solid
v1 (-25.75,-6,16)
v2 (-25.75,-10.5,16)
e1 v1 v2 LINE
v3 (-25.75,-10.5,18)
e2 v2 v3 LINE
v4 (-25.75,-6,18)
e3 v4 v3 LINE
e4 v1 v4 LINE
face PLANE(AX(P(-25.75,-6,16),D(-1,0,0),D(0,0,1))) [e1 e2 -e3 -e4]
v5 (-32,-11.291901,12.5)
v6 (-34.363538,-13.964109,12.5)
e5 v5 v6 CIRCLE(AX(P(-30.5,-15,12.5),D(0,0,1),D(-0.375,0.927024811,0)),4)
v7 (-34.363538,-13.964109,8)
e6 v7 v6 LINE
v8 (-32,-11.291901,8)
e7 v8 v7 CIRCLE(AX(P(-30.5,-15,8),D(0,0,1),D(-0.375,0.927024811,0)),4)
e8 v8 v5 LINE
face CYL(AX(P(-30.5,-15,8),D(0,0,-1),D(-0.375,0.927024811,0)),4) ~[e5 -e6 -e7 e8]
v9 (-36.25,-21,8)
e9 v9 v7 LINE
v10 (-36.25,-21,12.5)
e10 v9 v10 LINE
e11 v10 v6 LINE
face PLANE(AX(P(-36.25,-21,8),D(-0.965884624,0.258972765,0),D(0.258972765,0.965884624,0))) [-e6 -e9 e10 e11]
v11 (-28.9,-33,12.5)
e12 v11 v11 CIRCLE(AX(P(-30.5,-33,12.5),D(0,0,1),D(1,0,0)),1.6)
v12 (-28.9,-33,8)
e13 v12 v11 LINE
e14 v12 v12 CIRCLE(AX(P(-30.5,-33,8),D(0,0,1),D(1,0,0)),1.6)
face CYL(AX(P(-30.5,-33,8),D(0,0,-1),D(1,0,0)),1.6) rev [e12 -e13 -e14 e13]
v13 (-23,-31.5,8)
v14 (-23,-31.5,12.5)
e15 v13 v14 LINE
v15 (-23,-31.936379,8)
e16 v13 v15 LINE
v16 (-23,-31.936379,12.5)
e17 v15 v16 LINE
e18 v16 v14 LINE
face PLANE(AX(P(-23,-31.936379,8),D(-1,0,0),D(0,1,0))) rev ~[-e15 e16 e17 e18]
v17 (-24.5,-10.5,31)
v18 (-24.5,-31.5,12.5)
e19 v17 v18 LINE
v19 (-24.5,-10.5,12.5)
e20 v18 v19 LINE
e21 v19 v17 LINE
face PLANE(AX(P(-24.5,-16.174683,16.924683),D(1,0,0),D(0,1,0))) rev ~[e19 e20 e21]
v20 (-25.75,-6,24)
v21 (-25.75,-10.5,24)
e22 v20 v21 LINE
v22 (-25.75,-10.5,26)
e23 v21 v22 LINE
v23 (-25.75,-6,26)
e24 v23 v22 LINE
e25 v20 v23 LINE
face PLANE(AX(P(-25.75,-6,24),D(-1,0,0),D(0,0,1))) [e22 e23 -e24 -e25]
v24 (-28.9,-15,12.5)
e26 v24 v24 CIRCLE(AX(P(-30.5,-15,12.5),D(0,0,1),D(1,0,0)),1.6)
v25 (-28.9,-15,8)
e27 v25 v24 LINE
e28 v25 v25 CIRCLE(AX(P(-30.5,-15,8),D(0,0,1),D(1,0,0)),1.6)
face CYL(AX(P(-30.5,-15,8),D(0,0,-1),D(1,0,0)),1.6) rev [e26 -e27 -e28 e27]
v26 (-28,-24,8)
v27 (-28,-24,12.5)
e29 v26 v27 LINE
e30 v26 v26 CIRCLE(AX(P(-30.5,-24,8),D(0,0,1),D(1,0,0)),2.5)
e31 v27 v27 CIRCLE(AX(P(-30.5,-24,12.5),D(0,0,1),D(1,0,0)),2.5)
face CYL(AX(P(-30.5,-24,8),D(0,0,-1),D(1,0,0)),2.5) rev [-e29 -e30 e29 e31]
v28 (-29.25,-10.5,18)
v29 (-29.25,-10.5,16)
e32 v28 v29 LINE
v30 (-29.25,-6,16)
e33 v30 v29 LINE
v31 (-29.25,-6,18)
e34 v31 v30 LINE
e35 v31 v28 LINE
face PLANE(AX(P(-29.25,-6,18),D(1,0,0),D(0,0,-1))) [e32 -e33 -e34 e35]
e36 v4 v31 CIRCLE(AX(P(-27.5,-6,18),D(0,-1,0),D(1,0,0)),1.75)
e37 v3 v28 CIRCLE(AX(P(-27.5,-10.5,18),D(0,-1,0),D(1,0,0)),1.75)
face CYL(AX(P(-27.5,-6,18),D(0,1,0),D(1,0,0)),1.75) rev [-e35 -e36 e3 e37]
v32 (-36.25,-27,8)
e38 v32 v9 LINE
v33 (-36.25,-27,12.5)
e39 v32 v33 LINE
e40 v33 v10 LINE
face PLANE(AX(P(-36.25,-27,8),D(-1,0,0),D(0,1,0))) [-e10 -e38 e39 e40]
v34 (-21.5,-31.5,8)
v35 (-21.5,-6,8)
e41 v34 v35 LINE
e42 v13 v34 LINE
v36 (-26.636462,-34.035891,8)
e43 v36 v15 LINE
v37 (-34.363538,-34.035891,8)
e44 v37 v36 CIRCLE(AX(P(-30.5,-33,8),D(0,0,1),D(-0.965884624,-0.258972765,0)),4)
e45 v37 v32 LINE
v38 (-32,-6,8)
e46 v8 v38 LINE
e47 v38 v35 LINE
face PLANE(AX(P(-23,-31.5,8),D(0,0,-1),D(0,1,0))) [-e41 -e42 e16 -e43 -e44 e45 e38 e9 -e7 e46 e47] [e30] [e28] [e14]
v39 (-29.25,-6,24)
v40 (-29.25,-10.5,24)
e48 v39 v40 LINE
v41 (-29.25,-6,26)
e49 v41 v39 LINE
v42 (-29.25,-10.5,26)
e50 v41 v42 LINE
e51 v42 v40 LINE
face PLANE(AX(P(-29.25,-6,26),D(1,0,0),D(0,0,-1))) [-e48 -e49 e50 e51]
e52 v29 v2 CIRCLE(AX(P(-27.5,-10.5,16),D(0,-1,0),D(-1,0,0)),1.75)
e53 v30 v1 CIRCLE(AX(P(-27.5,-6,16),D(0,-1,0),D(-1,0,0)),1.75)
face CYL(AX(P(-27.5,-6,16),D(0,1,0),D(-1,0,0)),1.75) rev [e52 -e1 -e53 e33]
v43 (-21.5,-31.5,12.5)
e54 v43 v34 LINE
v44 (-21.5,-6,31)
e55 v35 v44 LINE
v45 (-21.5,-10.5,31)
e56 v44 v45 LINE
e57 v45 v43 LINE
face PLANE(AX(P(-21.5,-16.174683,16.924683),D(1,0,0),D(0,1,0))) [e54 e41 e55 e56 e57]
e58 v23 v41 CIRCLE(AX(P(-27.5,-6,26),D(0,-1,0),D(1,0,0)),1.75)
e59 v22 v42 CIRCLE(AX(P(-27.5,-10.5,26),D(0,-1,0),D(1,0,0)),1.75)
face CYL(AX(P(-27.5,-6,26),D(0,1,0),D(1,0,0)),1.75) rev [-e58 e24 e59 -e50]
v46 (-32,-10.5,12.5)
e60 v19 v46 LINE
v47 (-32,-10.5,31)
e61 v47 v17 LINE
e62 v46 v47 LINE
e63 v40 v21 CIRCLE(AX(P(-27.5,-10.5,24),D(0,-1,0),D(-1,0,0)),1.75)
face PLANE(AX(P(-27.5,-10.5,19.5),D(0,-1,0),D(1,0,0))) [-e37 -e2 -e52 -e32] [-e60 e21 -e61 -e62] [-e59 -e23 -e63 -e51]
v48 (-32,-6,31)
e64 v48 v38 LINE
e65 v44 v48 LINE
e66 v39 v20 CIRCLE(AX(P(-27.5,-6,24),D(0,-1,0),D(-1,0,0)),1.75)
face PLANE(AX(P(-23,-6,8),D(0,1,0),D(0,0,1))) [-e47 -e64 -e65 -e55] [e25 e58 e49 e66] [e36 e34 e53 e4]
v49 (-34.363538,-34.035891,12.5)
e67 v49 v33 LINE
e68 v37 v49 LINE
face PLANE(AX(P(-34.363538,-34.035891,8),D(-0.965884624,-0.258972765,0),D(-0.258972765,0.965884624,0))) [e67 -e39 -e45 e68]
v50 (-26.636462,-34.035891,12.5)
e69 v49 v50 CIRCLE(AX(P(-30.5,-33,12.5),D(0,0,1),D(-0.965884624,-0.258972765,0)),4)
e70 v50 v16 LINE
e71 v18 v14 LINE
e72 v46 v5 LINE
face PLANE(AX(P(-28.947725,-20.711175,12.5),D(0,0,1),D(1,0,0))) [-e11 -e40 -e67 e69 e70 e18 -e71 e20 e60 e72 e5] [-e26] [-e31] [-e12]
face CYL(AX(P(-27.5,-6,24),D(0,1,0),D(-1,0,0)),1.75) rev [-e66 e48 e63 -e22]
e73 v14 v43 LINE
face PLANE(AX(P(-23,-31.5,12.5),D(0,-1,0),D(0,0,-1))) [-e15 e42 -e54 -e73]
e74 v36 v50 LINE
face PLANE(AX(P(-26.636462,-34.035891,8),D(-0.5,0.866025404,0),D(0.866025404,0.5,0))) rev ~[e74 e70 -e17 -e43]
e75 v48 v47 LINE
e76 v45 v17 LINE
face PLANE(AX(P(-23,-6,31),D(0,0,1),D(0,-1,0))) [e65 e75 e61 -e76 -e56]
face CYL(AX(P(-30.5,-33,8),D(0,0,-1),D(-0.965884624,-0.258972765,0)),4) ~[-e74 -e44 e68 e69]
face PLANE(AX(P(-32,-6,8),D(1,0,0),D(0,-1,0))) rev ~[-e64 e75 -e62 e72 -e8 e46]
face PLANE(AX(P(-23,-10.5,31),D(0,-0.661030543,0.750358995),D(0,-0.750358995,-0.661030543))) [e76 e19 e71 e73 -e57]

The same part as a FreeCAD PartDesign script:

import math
import FreeCAD as App
import Part
import Sketcher
Q = App.Units.Quantity


def add_polygon(sketch, points):
    """Adds a closed chain of lines whose ends are joined by coincident constraints."""
    first, n = sketch.GeometryCount, len(points)
    for a, b in zip(points, points[1:] + points[:1]):
        sketch.addGeometry(Part.LineSegment(App.Vector(*a, 0), App.Vector(*b, 0)), False)
    for i in range(n):
        sketch.addConstraint(Sketcher.Constraint("Coincident", first + i, 2, first + (i + 1) % n, 1))

doc = App.newDocument("Part")
params = doc.addObject("Spreadsheet::Sheet", "Params")
for row, (alias, value) in enumerate([
    ("sketch1_width", "9 mm"),
    ("sketch1_height", "23 mm"),
    ("sketch1_height2", "2 mm"),
    ("sketch1_radius", "1.75 mm"),
    ("pad1_length", "4.5 mm"),
    ("sketch2_diameter", "5 mm"),
    ("sketch2_radius", "4 mm"),
    ("sketch2_diameter2", "3.2 mm"),
    ("sketch2_width", "9 mm"),
    ("sketch2_height", "6 mm"),
    ("pad2_length", "4.5 mm"),
    ("sketch3_height", "23 mm"),
    ("sketch3_width", "25.5 mm"),
    ("sketch3_width2", "4.5 mm"),
    ("pad3_length", "3 mm"),
], start=1):
    params.set(f"A{row}", alias)
    params.set(f"B{row}", "=" + value)
    params.setAlias(f"B{row}", alias)

body = doc.addObject("PartDesign::Body", "Body")

# Sketch on XZ plane
sketch1 = body.newObject("Sketcher::SketchObject", "Sketch")
sketch1.AttachmentSupport = (doc.getObject("XZ_Plane"), [""])
sketch1.MapMode = "FlatFace"
add_polygon(sketch1, [(-1.5, 23), (-1.5, 0), (7.5, 0), (7.5, 23)])  # lines 0-3
sketch1.addGeometry(Part.ArcOfCircle(Part.Circle(App.Vector(3, 10, 0), App.Vector(0, 0, 1), 1.8), math.radians(0), math.radians(180)), False)  # 4
sketch1.addGeometry(Part.LineSegment(App.Vector(4.8, 10, 0), App.Vector(4.8, 8, 0)), False)  # 5
sketch1.addGeometry(Part.ArcOfCircle(Part.Circle(App.Vector(3, 8, 0), App.Vector(0, 0, 1), 1.8), math.radians(180), math.radians(360)), False)  # 6
sketch1.addGeometry(Part.LineSegment(App.Vector(1.2, 8, 0), App.Vector(1.2, 10, 0)), False)  # 7
sketch1.addGeometry(Part.ArcOfCircle(Part.Circle(App.Vector(3, 18, 0), App.Vector(0, 0, 1), 1.8), math.radians(0), math.radians(180)), False)  # 8
sketch1.addGeometry(Part.LineSegment(App.Vector(4.8, 18, 0), App.Vector(4.8, 16, 0)), False)  # 9
sketch1.addGeometry(Part.ArcOfCircle(Part.Circle(App.Vector(3, 16, 0), App.Vector(0, 0, 1), 1.8), math.radians(180), math.radians(360)), False)  # 10
sketch1.addGeometry(Part.LineSegment(App.Vector(1.2, 16, 0), App.Vector(1.2, 18, 0)), False)  # 11
sketch1.addConstraint([
    Sketcher.Constraint("Tangent", 4, 1, 5, 1),
    Sketcher.Constraint("Tangent", 5, 2, 6, 2),
    Sketcher.Constraint("Tangent", 6, 1, 7, 1),
    Sketcher.Constraint("Tangent", 7, 2, 4, 2),
    Sketcher.Constraint("Tangent", 8, 1, 9, 1),
    Sketcher.Constraint("Tangent", 9, 2, 10, 2),
    Sketcher.Constraint("Tangent", 10, 1, 11, 1),
    Sketcher.Constraint("Tangent", 11, 2, 8, 2),
    Sketcher.Constraint("Vertical", 0),
    Sketcher.Constraint("Horizontal", 1),
    Sketcher.Constraint("Vertical", 2),
    Sketcher.Constraint("Horizontal", 3),
    Sketcher.Constraint("Vertical", 5),
    Sketcher.Constraint("Vertical", 7),
    Sketcher.Constraint("Vertical", 9),
    Sketcher.Constraint("Vertical", 11),
    Sketcher.Constraint("Equal", 6, 8),
    Sketcher.Constraint("PointOnObject", 0, 2, -1),
    Sketcher.Constraint("Vertical", 6, 3, 8, 3),
    Sketcher.Constraint("Equal", 7, 9),
    Sketcher.Constraint("DistanceX", 1, 1, 1, 2, 9.0),
    Sketcher.Constraint("DistanceY", 0, 2, 0, 1, 23.0),
    Sketcher.Constraint("DistanceY", 5, 2, 5, 1, 2.0),
    Sketcher.Constraint("Radius", 4, 1.75),
    Sketcher.Constraint("DistanceX", -1, 1, 4, 3, 3.0),
    Sketcher.Constraint("DistanceY", -1, 1, 4, 3, 10.0),
    Sketcher.Constraint("DistanceY", -1, 1, 8, 3, 18.0),
    Sketcher.Constraint("DistanceX", 0, 2, -1, 1, 1.5),
])
sketch1.setExpression("Constraints[24]", "Params.sketch1_width")
sketch1.setExpression("Constraints[25]", "Params.sketch1_height")
sketch1.setExpression("Constraints[26]", "Params.sketch1_height2")
sketch1.setExpression("Constraints[27]", "Params.sketch1_radius")
pad1 = body.newObject("PartDesign::Pad", "Pad")
pad1.Profile = sketch1
pad1.setExpression("Length", "Params.pad1_length")

# Sketch on XY plane
sketch2 = body.newObject("Sketcher::SketchObject", "Sketch001")
sketch2.AttachmentSupport = (doc.getObject("XY_Plane"), [""])
sketch2.MapMode = "FlatFace"
sketch2.addGeometry([
    Part.ArcOfCircle(Part.Circle(App.Vector(0, -27, 0), App.Vector(0, 0, 1), 4), math.radians(-165), math.radians(-15)),  # 0
    Part.LineSegment(App.Vector(3.9, -28, 0), App.Vector(7.5, -25.9, 0)),  # 1
    Part.LineSegment(App.Vector(7.5, -25.9, 0), App.Vector(7.5, 0, 0)),  # 2
    Part.LineSegment(App.Vector(7.5, 0, 0), App.Vector(-1.5, 0, 0)),  # 3
    Part.LineSegment(App.Vector(-1.5, 0, 0), App.Vector(-1.5, -5.3, 0)),  # 4
    Part.ArcOfCircle(Part.Circle(App.Vector(0, -9, 0), App.Vector(0, 0, 1), 4), math.radians(112), math.radians(165)),  # 5
    Part.LineSegment(App.Vector(-3.9, -8, 0), App.Vector(-5.8, -15, 0)),  # 6
    Part.LineSegment(App.Vector(-5.8, -15, 0), App.Vector(-5.8, -21, 0)),  # 7
    Part.LineSegment(App.Vector(-5.8, -21, 0), App.Vector(-3.9, -28, 0)),  # 8
    Part.Circle(App.Vector(0, -27, 0), App.Vector(0, 0, 1), 1.6),  # 9
    Part.Circle(App.Vector(0, -9, 0), App.Vector(0, 0, 1), 1.6),  # 10
    Part.Circle(App.Vector(0, -18, 0), App.Vector(0, 0, 1), 2.5),  # 11
], False)
sketch2.addConstraint([
    Sketcher.Constraint("Coincident", 0, 2, 1, 1),
    Sketcher.Constraint("Coincident", 1, 2, 2, 1),
    Sketcher.Constraint("Coincident", 2, 2, 3, 1),
    Sketcher.Constraint("Coincident", 3, 2, 4, 1),
    Sketcher.Constraint("Coincident", 4, 2, 5, 1),
    Sketcher.Constraint("Tangent", 5, 2, 6, 1),
    Sketcher.Constraint("Coincident", 6, 2, 7, 1),
    Sketcher.Constraint("Coincident", 7, 2, 8, 1),
    Sketcher.Constraint("Tangent", 8, 2, 0, 1),
    Sketcher.Constraint("Vertical", 2),
    Sketcher.Constraint("Horizontal", 3),
    Sketcher.Constraint("Vertical", 4),
    Sketcher.Constraint("Vertical", 7),
    Sketcher.Constraint("Coincident", 9, 3, 0, 3),
    Sketcher.Constraint("Coincident", 10, 3, 5, 3),
    Sketcher.Constraint("Equal", 0, 5),
    Sketcher.Constraint("Equal", 9, 10),
    Sketcher.Constraint("Symmetric", 0, 2, 8, 2, -2),
    Sketcher.Constraint("PointOnObject", 5, 3, -2),
    Sketcher.Constraint("PointOnObject", 11, 3, -2),
    Sketcher.Constraint("PointOnObject", 2, 2, -1),
    Sketcher.Constraint("Vertical", 5, 2, 8, 2),
    Sketcher.Constraint("Diameter", 11, 5.0),
    Sketcher.Constraint("Radius", 0, 4.0),
    Sketcher.Constraint("Diameter", 9, 3.2),
    Sketcher.Constraint("DistanceX", 3, 2, 3, 1, 9.0),
    Sketcher.Constraint("DistanceY", 7, 2, 7, 1, 6.0),
    Sketcher.Constraint("Angle", 1, Q("30 deg")),
    Sketcher.Constraint("DistanceY", 0, 3, -1, 1, 27.0),
    Sketcher.Constraint("DistanceY", 5, 3, -1, 1, 9.0),
    Sketcher.Constraint("DistanceY", 11, 3, -1, 1, 18.0),
    Sketcher.Constraint("DistanceX", -1, 1, 1, 2, 7.5),
    Sketcher.Constraint("DistanceX", 6, 2, -1, 1, 5.75),
])
sketch2.setExpression("Constraints[22]", "Params.sketch2_diameter")
sketch2.setExpression("Constraints[23]", "Params.sketch2_radius")
sketch2.setExpression("Constraints[24]", "Params.sketch2_diameter2")
sketch2.setExpression("Constraints[25]", "Params.sketch2_width")
sketch2.setExpression("Constraints[26]", "Params.sketch2_height")
pad2 = body.newObject("PartDesign::Pad", "Pad001")
pad2.Profile = sketch2
pad2.setExpression("Length", "Params.pad2_length")

# Sketch on YZ plane
sketch3 = body.newObject("Sketcher::SketchObject", "Sketch002")
sketch3.AttachmentSupport = (doc.getObject("YZ_Plane"), [""])
sketch3.MapMode = "FlatFace"
sketch3.AttachmentOffset = App.Placement(App.Vector(0, 0, 7.5), App.Rotation())
add_polygon(sketch3, [(-4.5, 23), (-25.5, 4.5), (-25.5, 0), (0, 0), (0, 23)])  # lines 0-4
sketch3.addConstraint([
    Sketcher.Constraint("Vertical", 1),
    Sketcher.Constraint("Horizontal", 2),
    Sketcher.Constraint("Vertical", 3),
    Sketcher.Constraint("Horizontal", 4),
    Sketcher.Constraint("Coincident", 2, 2, -1, 1),
    Sketcher.Constraint("Equal", 4, 1),
    Sketcher.Constraint("DistanceY", 3, 1, 3, 2, 23.0),
    Sketcher.Constraint("DistanceX", 2, 1, 2, 2, 25.5),
    Sketcher.Constraint("DistanceX", 4, 2, 4, 1, 4.5),
])
sketch3.setExpression("Constraints[11]", "Params.sketch3_height")
sketch3.setExpression("Constraints[12]", "Params.sketch3_width")
sketch3.setExpression("Constraints[13]", "Params.sketch3_width2")
pad3 = body.newObject("PartDesign::Pad", "Pad002")
pad3.Profile = sketch3
pad3.setExpression("Length", "Params.pad3_length")
pad3.Midplane = True
body2 = doc.addObject("PartDesign::Body", "Body001")
doc.recompute()

body.Placement = App.Placement(App.Vector(-30.5, -6, 8), App.Rotation(App.Vector(0, 0, 1), 0))
boolean = body2.newObject("PartDesign::Boolean", "Boolean")
boolean.Type = "Fuse"
boolean.addObjects([body])

doc.recompute()
